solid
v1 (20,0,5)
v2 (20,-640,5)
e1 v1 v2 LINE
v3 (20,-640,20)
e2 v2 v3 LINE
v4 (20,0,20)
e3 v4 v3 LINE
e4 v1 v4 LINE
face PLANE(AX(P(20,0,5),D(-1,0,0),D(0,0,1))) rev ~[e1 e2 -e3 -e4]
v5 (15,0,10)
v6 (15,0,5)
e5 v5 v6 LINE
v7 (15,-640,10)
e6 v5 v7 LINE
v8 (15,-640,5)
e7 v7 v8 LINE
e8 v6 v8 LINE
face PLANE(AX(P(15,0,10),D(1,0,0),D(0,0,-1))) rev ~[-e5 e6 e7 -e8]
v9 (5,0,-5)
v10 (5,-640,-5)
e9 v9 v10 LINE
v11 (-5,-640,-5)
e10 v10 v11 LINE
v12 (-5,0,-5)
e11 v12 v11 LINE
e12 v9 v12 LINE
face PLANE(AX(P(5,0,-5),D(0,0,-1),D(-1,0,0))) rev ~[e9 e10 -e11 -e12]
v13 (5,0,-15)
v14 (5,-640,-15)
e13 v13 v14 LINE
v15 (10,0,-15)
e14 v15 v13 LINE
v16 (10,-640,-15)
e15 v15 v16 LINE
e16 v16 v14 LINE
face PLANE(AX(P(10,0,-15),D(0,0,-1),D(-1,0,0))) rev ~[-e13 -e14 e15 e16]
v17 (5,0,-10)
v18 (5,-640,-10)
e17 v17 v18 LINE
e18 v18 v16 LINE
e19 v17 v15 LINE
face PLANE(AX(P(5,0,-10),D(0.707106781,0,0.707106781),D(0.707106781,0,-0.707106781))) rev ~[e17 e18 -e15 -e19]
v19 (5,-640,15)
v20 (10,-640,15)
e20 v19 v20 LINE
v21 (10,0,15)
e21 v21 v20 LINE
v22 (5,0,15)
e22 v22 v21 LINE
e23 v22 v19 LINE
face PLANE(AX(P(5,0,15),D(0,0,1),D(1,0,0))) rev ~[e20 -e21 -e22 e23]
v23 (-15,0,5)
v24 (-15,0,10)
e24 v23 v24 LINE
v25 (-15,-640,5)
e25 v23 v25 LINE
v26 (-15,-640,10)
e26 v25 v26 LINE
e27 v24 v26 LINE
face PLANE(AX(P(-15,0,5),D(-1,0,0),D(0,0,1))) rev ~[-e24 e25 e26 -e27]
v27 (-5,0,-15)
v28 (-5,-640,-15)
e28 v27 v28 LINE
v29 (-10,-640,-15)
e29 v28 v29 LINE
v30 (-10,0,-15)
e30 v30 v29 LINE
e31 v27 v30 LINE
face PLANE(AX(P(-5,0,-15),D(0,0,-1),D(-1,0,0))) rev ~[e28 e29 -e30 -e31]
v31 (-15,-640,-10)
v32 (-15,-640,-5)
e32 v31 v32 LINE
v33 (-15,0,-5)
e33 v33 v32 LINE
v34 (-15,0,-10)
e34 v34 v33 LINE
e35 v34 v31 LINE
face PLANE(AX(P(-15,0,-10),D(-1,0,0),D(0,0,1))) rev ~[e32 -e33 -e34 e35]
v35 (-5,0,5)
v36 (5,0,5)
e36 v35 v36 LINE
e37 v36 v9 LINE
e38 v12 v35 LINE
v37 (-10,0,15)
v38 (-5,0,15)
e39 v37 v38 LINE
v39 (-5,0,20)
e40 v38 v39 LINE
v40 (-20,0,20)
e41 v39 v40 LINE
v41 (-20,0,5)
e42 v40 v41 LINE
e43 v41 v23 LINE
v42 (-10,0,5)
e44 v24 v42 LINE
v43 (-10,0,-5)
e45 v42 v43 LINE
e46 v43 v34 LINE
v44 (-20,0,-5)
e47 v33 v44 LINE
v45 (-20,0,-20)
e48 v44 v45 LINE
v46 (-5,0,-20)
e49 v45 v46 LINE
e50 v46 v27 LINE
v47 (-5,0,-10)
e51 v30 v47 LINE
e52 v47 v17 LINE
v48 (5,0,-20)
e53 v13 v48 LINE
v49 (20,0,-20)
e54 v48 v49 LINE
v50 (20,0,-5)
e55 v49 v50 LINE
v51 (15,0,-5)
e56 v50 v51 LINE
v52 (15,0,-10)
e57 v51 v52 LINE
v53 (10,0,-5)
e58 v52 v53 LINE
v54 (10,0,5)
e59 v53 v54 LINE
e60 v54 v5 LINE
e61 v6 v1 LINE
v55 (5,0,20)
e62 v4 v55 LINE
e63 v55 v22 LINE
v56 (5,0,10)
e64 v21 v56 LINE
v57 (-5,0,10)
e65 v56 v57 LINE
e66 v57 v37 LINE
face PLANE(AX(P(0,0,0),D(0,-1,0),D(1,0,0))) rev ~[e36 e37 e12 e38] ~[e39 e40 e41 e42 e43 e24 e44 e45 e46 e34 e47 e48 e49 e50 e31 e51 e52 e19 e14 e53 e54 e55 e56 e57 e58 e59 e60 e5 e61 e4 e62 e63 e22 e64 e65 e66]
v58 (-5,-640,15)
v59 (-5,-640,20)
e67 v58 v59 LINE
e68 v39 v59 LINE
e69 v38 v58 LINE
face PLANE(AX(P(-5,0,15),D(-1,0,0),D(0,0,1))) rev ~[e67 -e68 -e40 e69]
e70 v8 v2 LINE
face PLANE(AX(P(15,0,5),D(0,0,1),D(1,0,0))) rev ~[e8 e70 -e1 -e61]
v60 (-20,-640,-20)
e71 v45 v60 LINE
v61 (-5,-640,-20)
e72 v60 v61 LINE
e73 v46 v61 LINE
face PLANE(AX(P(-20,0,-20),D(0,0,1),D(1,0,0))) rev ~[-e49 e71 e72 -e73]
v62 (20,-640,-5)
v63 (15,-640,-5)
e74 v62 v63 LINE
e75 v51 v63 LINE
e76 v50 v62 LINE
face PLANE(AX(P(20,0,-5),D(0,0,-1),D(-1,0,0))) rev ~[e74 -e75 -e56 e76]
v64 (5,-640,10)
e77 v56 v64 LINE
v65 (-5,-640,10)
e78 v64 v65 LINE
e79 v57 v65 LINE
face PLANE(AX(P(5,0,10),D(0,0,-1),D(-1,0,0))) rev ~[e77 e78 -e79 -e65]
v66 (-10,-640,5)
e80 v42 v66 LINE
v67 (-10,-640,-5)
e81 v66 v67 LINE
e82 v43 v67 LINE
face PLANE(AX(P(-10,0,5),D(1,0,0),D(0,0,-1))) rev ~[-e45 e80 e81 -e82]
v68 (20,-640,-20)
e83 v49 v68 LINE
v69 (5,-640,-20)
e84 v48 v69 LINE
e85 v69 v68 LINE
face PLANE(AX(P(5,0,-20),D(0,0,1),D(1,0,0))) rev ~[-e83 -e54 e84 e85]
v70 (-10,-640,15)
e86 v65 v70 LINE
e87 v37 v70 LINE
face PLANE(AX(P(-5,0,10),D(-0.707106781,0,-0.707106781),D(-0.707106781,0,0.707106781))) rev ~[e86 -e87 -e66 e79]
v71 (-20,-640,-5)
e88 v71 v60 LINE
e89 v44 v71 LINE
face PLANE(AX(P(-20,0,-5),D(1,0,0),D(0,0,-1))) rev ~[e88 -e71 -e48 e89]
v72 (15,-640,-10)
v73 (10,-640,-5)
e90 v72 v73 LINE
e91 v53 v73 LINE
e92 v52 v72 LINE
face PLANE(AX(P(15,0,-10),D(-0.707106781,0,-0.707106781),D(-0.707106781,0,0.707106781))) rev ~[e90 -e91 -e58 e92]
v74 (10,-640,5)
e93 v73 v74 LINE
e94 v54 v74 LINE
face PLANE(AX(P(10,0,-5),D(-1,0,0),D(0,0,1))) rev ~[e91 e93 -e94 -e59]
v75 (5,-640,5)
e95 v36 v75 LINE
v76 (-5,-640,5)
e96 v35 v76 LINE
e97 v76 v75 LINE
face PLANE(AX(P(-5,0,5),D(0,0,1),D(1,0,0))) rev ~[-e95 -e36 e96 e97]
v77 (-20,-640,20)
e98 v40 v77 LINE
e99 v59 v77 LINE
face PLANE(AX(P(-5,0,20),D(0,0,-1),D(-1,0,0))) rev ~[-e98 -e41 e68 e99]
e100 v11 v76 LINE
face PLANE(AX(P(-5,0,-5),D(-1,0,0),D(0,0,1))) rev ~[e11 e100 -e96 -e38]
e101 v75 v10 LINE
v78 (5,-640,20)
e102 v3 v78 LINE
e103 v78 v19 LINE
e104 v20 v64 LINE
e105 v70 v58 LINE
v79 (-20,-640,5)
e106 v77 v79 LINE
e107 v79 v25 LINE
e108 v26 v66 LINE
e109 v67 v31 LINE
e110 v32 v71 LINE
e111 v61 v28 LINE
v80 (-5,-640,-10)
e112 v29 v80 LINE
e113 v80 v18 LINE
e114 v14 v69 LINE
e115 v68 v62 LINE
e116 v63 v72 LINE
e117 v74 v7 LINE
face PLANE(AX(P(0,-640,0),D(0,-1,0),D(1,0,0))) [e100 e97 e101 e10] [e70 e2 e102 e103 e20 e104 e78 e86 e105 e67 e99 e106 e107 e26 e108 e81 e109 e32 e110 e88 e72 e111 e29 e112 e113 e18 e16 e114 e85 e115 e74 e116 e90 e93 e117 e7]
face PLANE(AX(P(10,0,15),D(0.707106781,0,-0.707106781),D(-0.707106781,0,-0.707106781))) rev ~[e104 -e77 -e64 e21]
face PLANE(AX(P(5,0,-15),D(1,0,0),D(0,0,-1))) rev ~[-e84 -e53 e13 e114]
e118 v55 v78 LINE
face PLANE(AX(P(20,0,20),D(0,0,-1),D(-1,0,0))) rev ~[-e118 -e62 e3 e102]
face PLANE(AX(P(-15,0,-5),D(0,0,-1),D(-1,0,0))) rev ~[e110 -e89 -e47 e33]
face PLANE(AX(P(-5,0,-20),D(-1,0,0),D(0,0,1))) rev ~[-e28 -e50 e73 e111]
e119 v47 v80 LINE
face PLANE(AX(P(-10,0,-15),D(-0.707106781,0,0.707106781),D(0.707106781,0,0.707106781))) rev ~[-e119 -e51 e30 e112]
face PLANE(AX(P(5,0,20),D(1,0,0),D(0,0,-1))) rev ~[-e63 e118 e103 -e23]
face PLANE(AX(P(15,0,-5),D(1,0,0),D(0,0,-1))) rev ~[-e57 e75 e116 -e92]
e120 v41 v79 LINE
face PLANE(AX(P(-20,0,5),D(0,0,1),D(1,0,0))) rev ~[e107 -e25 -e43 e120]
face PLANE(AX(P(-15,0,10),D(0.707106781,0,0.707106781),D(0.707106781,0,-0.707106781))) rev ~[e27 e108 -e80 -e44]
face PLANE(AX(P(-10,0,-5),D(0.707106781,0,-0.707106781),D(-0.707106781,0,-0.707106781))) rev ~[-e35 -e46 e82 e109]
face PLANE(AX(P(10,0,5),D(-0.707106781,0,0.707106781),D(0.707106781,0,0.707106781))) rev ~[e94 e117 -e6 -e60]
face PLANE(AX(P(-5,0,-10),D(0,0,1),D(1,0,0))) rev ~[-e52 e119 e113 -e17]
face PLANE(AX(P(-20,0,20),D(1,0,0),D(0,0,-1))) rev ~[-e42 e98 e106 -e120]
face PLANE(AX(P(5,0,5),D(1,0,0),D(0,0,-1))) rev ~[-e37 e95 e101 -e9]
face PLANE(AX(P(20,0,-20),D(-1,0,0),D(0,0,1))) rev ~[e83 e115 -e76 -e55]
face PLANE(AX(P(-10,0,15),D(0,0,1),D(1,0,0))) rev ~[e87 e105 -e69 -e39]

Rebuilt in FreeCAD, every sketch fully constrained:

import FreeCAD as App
import Part
import Sketcher
from FreeCAD import Vector


def add_polygon(sketch, points):
    """Adds a closed chain of lines whose ends are joined by coincident constraints."""
    first, n = sketch.GeometryCount, len(points)
    for a, b in zip(points, points[1:] + points[:1]):
        sketch.addGeometry(Part.LineSegment(App.Vector(*a, 0), App.Vector(*b, 0)), False)
    for i in range(n):
        sketch.addConstraint(Sketcher.Constraint("Coincident", first + i, 2, first + (i + 1) % n, 1))

doc = App.newDocument("Part")
body = doc.addObject("PartDesign::Body", "Body")

sketch1 = body.newObject("Sketcher::SketchObject", "Sketch")
sketch1.AttachmentSupport = (doc.getObject("XZ_Plane"), [""])
sketch1.MapMode = "FlatFace"
add_polygon(sketch1, [(20, 5), (20, 20), (5, 20), (5, 15), (10, 15), (5, 10), (-5, 10), (-10, 15), (-5, 15), (-5, 20), (-20, 20), (-20, 5), (-15, 5), (-15, 10), (-10, 5), (-10, -5), (-15, -10), (-15, -5), (-20, -5), (-20, -20), (-5, -20), (-5, -15), (-10, -15), (-5, -10), (5, -10), (10, -15), (5, -15), (5, -20), (20, -20), (20, -5), (15, -5), (15, -10), (10, -5), (10, 5), (15, 10), (15, 5)])
add_polygon(sketch1, [(-5, -5), (-5, 5), (5, 5), (5, -5)])
sketch1.addConstraint([
    Sketcher.Constraint("Vertical", 0),
    Sketcher.Constraint("Horizontal", 1),
    Sketcher.Constraint("Vertical", 2),
    Sketcher.Constraint("Horizontal", 3),
    Sketcher.Constraint("Horizontal", 5),
    Sketcher.Constraint("Horizontal", 7),
    Sketcher.Constraint("Vertical", 8),
    Sketcher.Constraint("Horizontal", 9),
    Sketcher.Constraint("Vertical", 10),
    Sketcher.Constraint("Horizontal", 11),
    Sketcher.Constraint("Vertical", 12),
    Sketcher.Constraint("Vertical", 14),
    Sketcher.Constraint("Vertical", 16),
    Sketcher.Constraint("Horizontal", 17),
    Sketcher.Constraint("Vertical", 18),
    Sketcher.Constraint("Horizontal", 19),
    Sketcher.Constraint("Vertical", 20),
    Sketcher.Constraint("Horizontal", 21),
    Sketcher.Constraint("Horizontal", 23),
    Sketcher.Constraint("Horizontal", 25),
    Sketcher.Constraint("Vertical", 26),
    Sketcher.Constraint("Horizontal", 27),
    Sketcher.Constraint("Vertical", 28),
    Sketcher.Constraint("Horizontal", 29),
    Sketcher.Constraint("Vertical", 30),
    Sketcher.Constraint("Vertical", 32),
    Sketcher.Constraint("Vertical", 34),
    Sketcher.Constraint("Horizontal", 35),
    Sketcher.Constraint("Vertical", 36),
    Sketcher.Constraint("Horizontal", 37),
    Sketcher.Constraint("Vertical", 38),
    Sketcher.Constraint("Horizontal", 39),
    Sketcher.Constraint("Symmetric", 0, 2, 18, 2, -1, 1),
    Sketcher.Constraint("Symmetric", 2, 2, 20, 2, -1, 1),
    Sketcher.Constraint("Symmetric", 4, 2, 22, 2, -1, 1),
    Sketcher.Constraint("Symmetric", 6, 2, 24, 2, -1, 1),
    Sketcher.Constraint("Symmetric", 8, 2, 26, 2, -1, 1),
    Sketcher.Constraint("Symmetric", 10, 2, 28, 2, -1, 1),
    Sketcher.Constraint("Symmetric", 12, 2, 30, 2, -1, 1),
    Sketcher.Constraint("Symmetric", 13, 2, 31, 2, -1, 1),
    Sketcher.Constraint("Symmetric", 15, 2, 33, 2, -1, 1),
    Sketcher.Constraint("Symmetric", 36, 2, 38, 2, -1, 1),
    Sketcher.Constraint("Symmetric", 3, 2, 6, 2, -2),
    Sketcher.Constraint("Symmetric", 1, 2, 8, 2, -2),
    Sketcher.Constraint("Symmetric", 17, 2, 28, 2, -2),
    Sketcher.Constraint("Symmetric", 15, 2, 30, 2, -2),
    Sketcher.Constraint("Perpendicular", 4, 6),
    Sketcher.Constraint("Parallel", 6, 13),
    Sketcher.Constraint("Perpendicular", 13, 15),
    Sketcher.Constraint("Parallel", 15, 22),
    Sketcher.Constraint("Perpendicular", 22, 24),
    Sketcher.Constraint("Perpendicular", 31, 33),
    Sketcher.Constraint("Horizontal", 5, 2, 12, 2),
    Sketcher.Constraint("Horizontal", 11, 2, 13, 2),
    Sketcher.Constraint("Horizontal", 14, 2, 16, 2),
    Sketcher.Constraint("Horizontal", 32, 2, 34, 2),
    Sketcher.Constraint("Horizontal", 35, 2, 36, 2),
    Sketcher.Constraint("Vertical", 2, 2, 4, 2),
    Sketcher.Constraint("Vertical", 6, 2, 13, 2),
    Sketcher.Constraint("Vertical", 22, 2, 36, 2),
    Sketcher.Constraint("Equal", 7, 11),
    Sketcher.Constraint("Equal", 27, 0),
    Sketcher.Constraint("Equal", 8, 12),
    Sketcher.Constraint("Equal", 39, 14),
    Sketcher.Constraint("DistanceX", 1, 2, 1, 1, 15.0),
    Sketcher.Constraint("DistanceX", 5, 2, 5, 1, 10.0),
])
pad1 = body.newObject("PartDesign::Pad", "Pad")
pad1.Profile = sketch1
pad1.Length = 640

doc.recompute()
